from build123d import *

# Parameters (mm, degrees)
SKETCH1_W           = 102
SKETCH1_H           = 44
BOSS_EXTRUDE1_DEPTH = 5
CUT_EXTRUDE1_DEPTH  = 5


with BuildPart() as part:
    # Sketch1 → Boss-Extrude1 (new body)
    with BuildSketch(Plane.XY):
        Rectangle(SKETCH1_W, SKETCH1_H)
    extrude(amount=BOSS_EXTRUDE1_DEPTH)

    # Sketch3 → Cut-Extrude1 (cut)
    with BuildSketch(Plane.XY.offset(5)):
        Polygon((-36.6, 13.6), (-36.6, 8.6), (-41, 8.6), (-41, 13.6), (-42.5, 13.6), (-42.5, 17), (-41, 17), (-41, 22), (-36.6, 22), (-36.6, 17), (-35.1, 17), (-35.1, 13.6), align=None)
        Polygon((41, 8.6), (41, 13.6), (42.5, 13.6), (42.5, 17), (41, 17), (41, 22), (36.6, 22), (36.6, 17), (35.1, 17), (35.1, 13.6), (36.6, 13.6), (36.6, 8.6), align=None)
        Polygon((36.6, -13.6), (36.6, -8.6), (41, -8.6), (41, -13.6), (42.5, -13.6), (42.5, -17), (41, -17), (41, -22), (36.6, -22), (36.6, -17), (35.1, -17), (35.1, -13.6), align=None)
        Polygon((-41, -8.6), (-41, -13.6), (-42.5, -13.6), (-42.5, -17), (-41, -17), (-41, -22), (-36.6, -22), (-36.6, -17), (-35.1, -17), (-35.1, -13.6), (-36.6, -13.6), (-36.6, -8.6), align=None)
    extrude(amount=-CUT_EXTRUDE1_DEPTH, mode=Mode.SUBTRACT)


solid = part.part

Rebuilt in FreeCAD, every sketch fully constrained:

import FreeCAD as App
import Part
import Sketcher

V = App.Vector
Q = App.Units.Quantity

doc = App.newDocument("Part")
body = doc.addObject("PartDesign::Body", "Body")

sketch1 = body.newObject("Sketcher::SketchObject", "Sketch")
sketch1.AttachmentSupport = (doc.getObject("XY_Plane"), [""])
sketch1.MapMode = "FlatFace"
sketch1.addGeometry([
    Part.LineSegment(V(-51, 22, 0), V(-51, -22, 0)),
    Part.LineSegment(V(-51, -22, 0), V(51, -22, 0)),
    Part.LineSegment(V(51, -22, 0), V(51, 22, 0)),
    Part.LineSegment(V(51, 22, 0), V(-51, 22, 0)),
], False)
sketch1.addConstraint([
    Sketcher.Constraint("Coincident", 0, 2, 1, 1),
    Sketcher.Constraint("Coincident", 1, 2, 2, 1),
    Sketcher.Constraint("Coincident", 2, 2, 3, 1),
    Sketcher.Constraint("Coincident", 3, 2, 0, 1),
    Sketcher.Constraint("Vertical", 0),
    Sketcher.Constraint("Horizontal", 1),
    Sketcher.Constraint("Vertical", 2),
    Sketcher.Constraint("Horizontal", 3),
    Sketcher.Constraint("Symmetric", 0, 2, 2, 2, -1, 1),
    Sketcher.Constraint("DistanceX", 1, 1, 1, 2, Q("102 mm")),
    Sketcher.Constraint("DistanceY", 0, 2, 0, 1, Q("44 mm")),
])
pad1 = body.newObject("PartDesign::Pad", "Pad")
pad1.Profile = sketch1
pad1.Length = 5

sketch2 = body.newObject("Sketcher::SketchObject", "Sketch001")
sketch2.AttachmentSupport = (doc.getObject("XY_Plane"), [""])
sketch2.MapMode = "FlatFace"
sketch2.AttachmentOffset = App.Placement(V(0, 0, 5), App.Rotation())
sketch2.addGeometry([
    Part.LineSegment(V(-36.6, 8.6, 0), V(-36.6, 13.6, 0)),
    Part.LineSegment(V(-36.6, 13.6, 0), V(-35.1, 13.6, 0)),
    Part.LineSegment(V(-35.1, 13.6, 0), V(-35.1, 17, 0)),
    Part.LineSegment(V(-35.1, 17, 0), V(-36.6, 17, 0)),
    Part.LineSegment(V(-36.6, 17, 0), V(-36.6, 22, 0)),
    Part.LineSegment(V(-36.6, 22, 0), V(-41, 22, 0)),
    Part.LineSegment(V(-41, 22, 0), V(-41, 17, 0)),
    Part.LineSegment(V(-41, 17, 0), V(-42.5, 17, 0)),
    Part.LineSegment(V(-42.5, 17, 0), V(-42.5, 13.6, 0)),
    Part.LineSegment(V(-42.5, 13.6, 0), V(-41, 13.6, 0)),
    Part.LineSegment(V(-41, 13.6, 0), V(-41, 8.6, 0)),
    Part.LineSegment(V(-41, 8.6, 0), V(-36.6, 8.6, 0)),
    Part.LineSegment(V(41, 8.6, 0), V(41, 13.6, 0)),
    Part.LineSegment(V(41, 13.6, 0), V(42.5, 13.6, 0)),
    Part.LineSegment(V(42.5, 13.6, 0), V(42.5, 17, 0)),
    Part.LineSegment(V(42.5, 17, 0), V(41, 17, 0)),
    Part.LineSegment(V(41, 17, 0), V(41, 22, 0)),
    Part.LineSegment(V(41, 22, 0), V(36.6, 22, 0)),
    Part.LineSegment(V(36.6, 22, 0), V(36.6, 17, 0)),
    Part.LineSegment(V(36.6, 17, 0), V(35.1, 17, 0)),
    Part.LineSegment(V(35.1, 17, 0), V(35.1, 13.6, 0)),
    Part.LineSegment(V(35.1, 13.6, 0), V(36.6, 13.6, 0)),
    Part.LineSegment(V(36.6, 13.6, 0), V(36.6, 8.6, 0)),
    Part.LineSegment(V(36.6, 8.6, 0), V(41, 8.6, 0)),
    Part.LineSegment(V(36.6, -8.6, 0), V(36.6, -13.6, 0)),
    Part.LineSegment(V(36.6, -13.6, 0), V(35.1, -13.6, 0)),
    Part.LineSegment(V(35.1, -13.6, 0), V(35.1, -17, 0)),
    Part.LineSegment(V(35.1, -17, 0), V(36.6, -17, 0)),
    Part.LineSegment(V(36.6, -17, 0), V(36.6, -22, 0)),
    Part.LineSegment(V(36.6, -22, 0), V(41, -22, 0)),
    Part.LineSegment(V(41, -22, 0), V(41, -17, 0)),
    Part.LineSegment(V(41, -17, 0), V(42.5, -17, 0)),
    Part.LineSegment(V(42.5, -17, 0), V(42.5, -13.6, 0)),
    Part.LineSegment(V(42.5, -13.6, 0), V(41, -13.6, 0)),
    Part.LineSegment(V(41, -13.6, 0), V(41, -8.6, 0)),
    Part.LineSegment(V(41, -8.6, 0), V(36.6, -8.6, 0)),
    Part.LineSegment(V(-41, -8.6, 0), V(-41, -13.6, 0)),
    Part.LineSegment(V(-41, -13.6, 0), V(-42.5, -13.6, 0)),
    Part.LineSegment(V(-42.5, -13.6, 0), V(-42.5, -17, 0)),
    Part.LineSegment(V(-42.5, -17, 0), V(-41, -17, 0)),
    Part.LineSegment(V(-41, -17, 0), V(-41, -22, 0)),
    Part.LineSegment(V(-41, -22, 0), V(-36.6, -22, 0)),
    Part.LineSegment(V(-36.6, -22, 0), V(-36.6, -17, 0)),
    Part.LineSegment(V(-36.6, -17, 0), V(-35.1, -17, 0)),
    Part.LineSegment(V(-35.1, -17, 0), V(-35.1, -13.6, 0)),
    Part.LineSegment(V(-35.1, -13.6, 0), V(-36.6, -13.6, 0)),
    Part.LineSegment(V(-36.6, -13.6, 0), V(-36.6, -8.6, 0)),
    Part.LineSegment(V(-36.6, -8.6, 0), V(-41, -8.6, 0)),
], False)
sketch2.addConstraint([
    Sketcher.Constraint("Coincident", 0, 2, 1, 1),
    Sketcher.Constraint("Coincident", 1, 2, 2, 1),
    Sketcher.Constraint("Coincident", 2, 2, 3, 1),
    Sketcher.Constraint("Coincident", 3, 2, 4, 1),
    Sketcher.Constraint("Coincident", 4, 2, 5, 1),
    Sketcher.Constraint("Coincident", 5, 2, 6, 1),
    Sketcher.Constraint("Coincident", 6, 2, 7, 1),
    Sketcher.Constraint("Coincident", 7, 2, 8, 1),
    Sketcher.Constraint("Coincident", 8, 2, 9, 1),
    Sketcher.Constraint("Coincident", 9, 2, 10, 1),
    Sketcher.Constraint("Coincident", 10, 2, 11, 1),
    Sketcher.Constraint("Coincident", 11, 2, 0, 1),
    Sketcher.Constraint("Coincident", 12, 2, 13, 1),
    Sketcher.Constraint("Coincident", 13, 2, 14, 1),
    Sketcher.Constraint("Coincident", 14, 2, 15, 1),
    Sketcher.Constraint("Coincident", 15, 2, 16, 1),
    Sketcher.Constraint("Coincident", 16, 2, 17, 1),
    Sketcher.Constraint("Coincident", 17, 2, 18, 1),
    Sketcher.Constraint("Coincident", 18, 2, 19, 1),
    Sketcher.Constraint("Coincident", 19, 2, 20, 1),
    Sketcher.Constraint("Coincident", 20, 2, 21, 1),
    Sketcher.Constraint("Coincident", 21, 2, 22, 1),
    Sketcher.Constraint("Coincident", 22, 2, 23, 1),
    Sketcher.Constraint("Coincident", 23, 2, 12, 1),
    Sketcher.Constraint("Coincident", 24, 2, 25, 1),
    Sketcher.Constraint("Coincident", 25, 2, 26, 1),
    Sketcher.Constraint("Coincident", 26, 2, 27, 1),
    Sketcher.Constraint("Coincident", 27, 2, 28, 1),
    Sketcher.Constraint("Coincident", 28, 2, 29, 1),
    Sketcher.Constraint("Coincident", 29, 2, 30, 1),
    Sketcher.Constraint("Coincident", 30, 2, 31, 1),
    Sketcher.Constraint("Coincident", 31, 2, 32, 1),
    Sketcher.Constraint("Coincident", 32, 2, 33, 1),
    Sketcher.Constraint("Coincident", 33, 2, 34, 1),
    Sketcher.Constraint("Coincident", 34, 2, 35, 1),
    Sketcher.Constraint("Coincident", 35, 2, 24, 1),
    Sketcher.Constraint("Coincident", 36, 2, 37, 1),
    Sketcher.Constraint("Coincident", 37, 2, 38, 1),
    Sketcher.Constraint("Coincident", 38, 2, 39, 1),
    Sketcher.Constraint("Coincident", 39, 2, 40, 1),
    Sketcher.Constraint("Coincident", 40, 2, 41, 1),
    Sketcher.Constraint("Coincident", 41, 2, 42, 1),
    Sketcher.Constraint("Coincident", 42, 2, 43, 1),
    Sketcher.Constraint("Coincident", 43, 2, 44, 1),
    Sketcher.Constraint("Coincident", 44, 2, 45, 1),
    Sketcher.Constraint("Coincident", 45, 2, 46, 1),
    Sketcher.Constraint("Coincident", 46, 2, 47, 1),
    Sketcher.Constraint("Coincident", 47, 2, 36, 1),
    Sketcher.Constraint("Vertical", 0),
    Sketcher.Constraint("Horizontal", 1),
    Sketcher.Constraint("Vertical", 2),
    Sketcher.Constraint("Horizontal", 3),
    Sketcher.Constraint("Vertical", 4),
    Sketcher.Constraint("Horizontal", 5),
    Sketcher.Constraint("Vertical", 6),
    Sketcher.Constraint("Horizontal", 7),
    Sketcher.Constraint("Vertical", 8),
    Sketcher.Constraint("Horizontal", 9),
    Sketcher.Constraint("Vertical", 10),
    Sketcher.Constraint("Horizontal", 11),
    Sketcher.Constraint("Vertical", 12),
    Sketcher.Constraint("Horizontal", 13),
    Sketcher.Constraint("Vertical", 14),
    Sketcher.Constraint("Horizontal", 15),
    Sketcher.Constraint("Vertical", 16),
    Sketcher.Constraint("Horizontal", 17),
    Sketcher.Constraint("Vertical", 18),
    Sketcher.Constraint("Horizontal", 19),
    Sketcher.Constraint("Vertical", 20),
    Sketcher.Constraint("Horizontal", 21),
    Sketcher.Constraint("Vertical", 22),
    Sketcher.Constraint("Horizontal", 23),
    Sketcher.Constraint("Vertical", 24),
    Sketcher.Constraint("Horizontal", 25),
    Sketcher.Constraint("Vertical", 26),
    Sketcher.Constraint("Horizontal", 27),
    Sketcher.Constraint("Vertical", 28),
    Sketcher.Constraint("Horizontal", 29),
    Sketcher.Constraint("Vertical", 30),
    Sketcher.Constraint("Horizontal", 31),
    Sketcher.Constraint("Vertical", 32),
    Sketcher.Constraint("Horizontal", 33),
    Sketcher.Constraint("Vertical", 34),
    Sketcher.Constraint("Horizontal", 35),
    Sketcher.Constraint("Vertical", 36),
    Sketcher.Constraint("Horizontal", 37),
    Sketcher.Constraint("Vertical", 38),
    Sketcher.Constraint("Horizontal", 39),
    Sketcher.Constraint("Vertical", 40),
    Sketcher.Constraint("Horizontal", 41),
    Sketcher.Constraint("Vertical", 42),
    Sketcher.Constraint("Horizontal", 43),
    Sketcher.Constraint("Vertical", 44),
    Sketcher.Constraint("Horizontal", 45),
    Sketcher.Constraint("Vertical", 46),
    Sketcher.Constraint("Horizontal", 47),
    Sketcher.Constraint("Symmetric", 0, 2, 24, 2, -1, 1),
    Sketcher.Constraint("Symmetric", 2, 2, 26, 2, -1, 1),
    Sketcher.Constraint("Symmetric", 4, 2, 28, 2, -1, 1),
    Sketcher.Constraint("Symmetric", 6, 2, 30, 2, -1, 1),
    Sketcher.Constraint("Symmetric", 8, 2, 32, 2, -1, 1),
    Sketcher.Constraint("Symmetric", 10, 2, 34, 2, -1, 1),
    Sketcher.Constraint("Symmetric", 12, 2, 36, 2, -1, 1),
    Sketcher.Constraint("Symmetric", 14, 2, 38, 2, -1, 1),
    Sketcher.Constraint("Symmetric", 16, 2, 40, 2, -1, 1),
    Sketcher.Constraint("Symmetric", 18, 2, 42, 2, -1, 1),
    Sketcher.Constraint("Symmetric", 20, 2, 44, 2, -1, 1),
    Sketcher.Constraint("Symmetric", 22, 2, 46, 2, -1, 1),
    Sketcher.Constraint("Symmetric", 9, 2, 12, 2, -2),
    Sketcher.Constraint("Symmetric", 7, 2, 14, 2, -2),
    Sketcher.Constraint("Symmetric", 5, 2, 16, 2, -2),
    Sketcher.Constraint("Symmetric", 3, 2, 18, 2, -2),
    Sketcher.Constraint("Symmetric", 1, 2, 20, 2, -2),
    Sketcher.Constraint("Symmetric", 11, 2, 22, 2, -2),
    Sketcher.Constraint("Horizontal", 3, 2, 6, 2),
    Sketcher.Constraint("Horizontal", 1, 2, 8, 2),
    Sketcher.Constraint("Vertical", 0, 2, 3, 2),
    Sketcher.Constraint("Vertical", 6, 2, 9, 2),
    Sketcher.Constraint("Equal", 3, 7),
    Sketcher.Constraint("Equal", 0, 4),
    Sketcher.Constraint("DistanceY", 0, 1, 0, 2, Q("5 mm")),
    Sketcher.Constraint("DistanceX", 1, 1, 1, 2, Q("1.5 mm")),
    Sketcher.Constraint("DistanceX", 5, 2, 5, 1, Q("4.4 mm")),
    Sketcher.Constraint("DistanceY", 2, 1, 2, 2, Q("3.4 mm")),
    Sketcher.Constraint("DistanceY", -1, 1, 2, 2, Q("17 mm")),
    Sketcher.Constraint("DistanceX", 5, 2, -1, 1, Q("41 mm")),
])
pocket1 = body.newObject("PartDesign::Pocket", "Pocket")
pocket1.Profile = sketch2
pocket1.Length = 5

doc.recompute()
